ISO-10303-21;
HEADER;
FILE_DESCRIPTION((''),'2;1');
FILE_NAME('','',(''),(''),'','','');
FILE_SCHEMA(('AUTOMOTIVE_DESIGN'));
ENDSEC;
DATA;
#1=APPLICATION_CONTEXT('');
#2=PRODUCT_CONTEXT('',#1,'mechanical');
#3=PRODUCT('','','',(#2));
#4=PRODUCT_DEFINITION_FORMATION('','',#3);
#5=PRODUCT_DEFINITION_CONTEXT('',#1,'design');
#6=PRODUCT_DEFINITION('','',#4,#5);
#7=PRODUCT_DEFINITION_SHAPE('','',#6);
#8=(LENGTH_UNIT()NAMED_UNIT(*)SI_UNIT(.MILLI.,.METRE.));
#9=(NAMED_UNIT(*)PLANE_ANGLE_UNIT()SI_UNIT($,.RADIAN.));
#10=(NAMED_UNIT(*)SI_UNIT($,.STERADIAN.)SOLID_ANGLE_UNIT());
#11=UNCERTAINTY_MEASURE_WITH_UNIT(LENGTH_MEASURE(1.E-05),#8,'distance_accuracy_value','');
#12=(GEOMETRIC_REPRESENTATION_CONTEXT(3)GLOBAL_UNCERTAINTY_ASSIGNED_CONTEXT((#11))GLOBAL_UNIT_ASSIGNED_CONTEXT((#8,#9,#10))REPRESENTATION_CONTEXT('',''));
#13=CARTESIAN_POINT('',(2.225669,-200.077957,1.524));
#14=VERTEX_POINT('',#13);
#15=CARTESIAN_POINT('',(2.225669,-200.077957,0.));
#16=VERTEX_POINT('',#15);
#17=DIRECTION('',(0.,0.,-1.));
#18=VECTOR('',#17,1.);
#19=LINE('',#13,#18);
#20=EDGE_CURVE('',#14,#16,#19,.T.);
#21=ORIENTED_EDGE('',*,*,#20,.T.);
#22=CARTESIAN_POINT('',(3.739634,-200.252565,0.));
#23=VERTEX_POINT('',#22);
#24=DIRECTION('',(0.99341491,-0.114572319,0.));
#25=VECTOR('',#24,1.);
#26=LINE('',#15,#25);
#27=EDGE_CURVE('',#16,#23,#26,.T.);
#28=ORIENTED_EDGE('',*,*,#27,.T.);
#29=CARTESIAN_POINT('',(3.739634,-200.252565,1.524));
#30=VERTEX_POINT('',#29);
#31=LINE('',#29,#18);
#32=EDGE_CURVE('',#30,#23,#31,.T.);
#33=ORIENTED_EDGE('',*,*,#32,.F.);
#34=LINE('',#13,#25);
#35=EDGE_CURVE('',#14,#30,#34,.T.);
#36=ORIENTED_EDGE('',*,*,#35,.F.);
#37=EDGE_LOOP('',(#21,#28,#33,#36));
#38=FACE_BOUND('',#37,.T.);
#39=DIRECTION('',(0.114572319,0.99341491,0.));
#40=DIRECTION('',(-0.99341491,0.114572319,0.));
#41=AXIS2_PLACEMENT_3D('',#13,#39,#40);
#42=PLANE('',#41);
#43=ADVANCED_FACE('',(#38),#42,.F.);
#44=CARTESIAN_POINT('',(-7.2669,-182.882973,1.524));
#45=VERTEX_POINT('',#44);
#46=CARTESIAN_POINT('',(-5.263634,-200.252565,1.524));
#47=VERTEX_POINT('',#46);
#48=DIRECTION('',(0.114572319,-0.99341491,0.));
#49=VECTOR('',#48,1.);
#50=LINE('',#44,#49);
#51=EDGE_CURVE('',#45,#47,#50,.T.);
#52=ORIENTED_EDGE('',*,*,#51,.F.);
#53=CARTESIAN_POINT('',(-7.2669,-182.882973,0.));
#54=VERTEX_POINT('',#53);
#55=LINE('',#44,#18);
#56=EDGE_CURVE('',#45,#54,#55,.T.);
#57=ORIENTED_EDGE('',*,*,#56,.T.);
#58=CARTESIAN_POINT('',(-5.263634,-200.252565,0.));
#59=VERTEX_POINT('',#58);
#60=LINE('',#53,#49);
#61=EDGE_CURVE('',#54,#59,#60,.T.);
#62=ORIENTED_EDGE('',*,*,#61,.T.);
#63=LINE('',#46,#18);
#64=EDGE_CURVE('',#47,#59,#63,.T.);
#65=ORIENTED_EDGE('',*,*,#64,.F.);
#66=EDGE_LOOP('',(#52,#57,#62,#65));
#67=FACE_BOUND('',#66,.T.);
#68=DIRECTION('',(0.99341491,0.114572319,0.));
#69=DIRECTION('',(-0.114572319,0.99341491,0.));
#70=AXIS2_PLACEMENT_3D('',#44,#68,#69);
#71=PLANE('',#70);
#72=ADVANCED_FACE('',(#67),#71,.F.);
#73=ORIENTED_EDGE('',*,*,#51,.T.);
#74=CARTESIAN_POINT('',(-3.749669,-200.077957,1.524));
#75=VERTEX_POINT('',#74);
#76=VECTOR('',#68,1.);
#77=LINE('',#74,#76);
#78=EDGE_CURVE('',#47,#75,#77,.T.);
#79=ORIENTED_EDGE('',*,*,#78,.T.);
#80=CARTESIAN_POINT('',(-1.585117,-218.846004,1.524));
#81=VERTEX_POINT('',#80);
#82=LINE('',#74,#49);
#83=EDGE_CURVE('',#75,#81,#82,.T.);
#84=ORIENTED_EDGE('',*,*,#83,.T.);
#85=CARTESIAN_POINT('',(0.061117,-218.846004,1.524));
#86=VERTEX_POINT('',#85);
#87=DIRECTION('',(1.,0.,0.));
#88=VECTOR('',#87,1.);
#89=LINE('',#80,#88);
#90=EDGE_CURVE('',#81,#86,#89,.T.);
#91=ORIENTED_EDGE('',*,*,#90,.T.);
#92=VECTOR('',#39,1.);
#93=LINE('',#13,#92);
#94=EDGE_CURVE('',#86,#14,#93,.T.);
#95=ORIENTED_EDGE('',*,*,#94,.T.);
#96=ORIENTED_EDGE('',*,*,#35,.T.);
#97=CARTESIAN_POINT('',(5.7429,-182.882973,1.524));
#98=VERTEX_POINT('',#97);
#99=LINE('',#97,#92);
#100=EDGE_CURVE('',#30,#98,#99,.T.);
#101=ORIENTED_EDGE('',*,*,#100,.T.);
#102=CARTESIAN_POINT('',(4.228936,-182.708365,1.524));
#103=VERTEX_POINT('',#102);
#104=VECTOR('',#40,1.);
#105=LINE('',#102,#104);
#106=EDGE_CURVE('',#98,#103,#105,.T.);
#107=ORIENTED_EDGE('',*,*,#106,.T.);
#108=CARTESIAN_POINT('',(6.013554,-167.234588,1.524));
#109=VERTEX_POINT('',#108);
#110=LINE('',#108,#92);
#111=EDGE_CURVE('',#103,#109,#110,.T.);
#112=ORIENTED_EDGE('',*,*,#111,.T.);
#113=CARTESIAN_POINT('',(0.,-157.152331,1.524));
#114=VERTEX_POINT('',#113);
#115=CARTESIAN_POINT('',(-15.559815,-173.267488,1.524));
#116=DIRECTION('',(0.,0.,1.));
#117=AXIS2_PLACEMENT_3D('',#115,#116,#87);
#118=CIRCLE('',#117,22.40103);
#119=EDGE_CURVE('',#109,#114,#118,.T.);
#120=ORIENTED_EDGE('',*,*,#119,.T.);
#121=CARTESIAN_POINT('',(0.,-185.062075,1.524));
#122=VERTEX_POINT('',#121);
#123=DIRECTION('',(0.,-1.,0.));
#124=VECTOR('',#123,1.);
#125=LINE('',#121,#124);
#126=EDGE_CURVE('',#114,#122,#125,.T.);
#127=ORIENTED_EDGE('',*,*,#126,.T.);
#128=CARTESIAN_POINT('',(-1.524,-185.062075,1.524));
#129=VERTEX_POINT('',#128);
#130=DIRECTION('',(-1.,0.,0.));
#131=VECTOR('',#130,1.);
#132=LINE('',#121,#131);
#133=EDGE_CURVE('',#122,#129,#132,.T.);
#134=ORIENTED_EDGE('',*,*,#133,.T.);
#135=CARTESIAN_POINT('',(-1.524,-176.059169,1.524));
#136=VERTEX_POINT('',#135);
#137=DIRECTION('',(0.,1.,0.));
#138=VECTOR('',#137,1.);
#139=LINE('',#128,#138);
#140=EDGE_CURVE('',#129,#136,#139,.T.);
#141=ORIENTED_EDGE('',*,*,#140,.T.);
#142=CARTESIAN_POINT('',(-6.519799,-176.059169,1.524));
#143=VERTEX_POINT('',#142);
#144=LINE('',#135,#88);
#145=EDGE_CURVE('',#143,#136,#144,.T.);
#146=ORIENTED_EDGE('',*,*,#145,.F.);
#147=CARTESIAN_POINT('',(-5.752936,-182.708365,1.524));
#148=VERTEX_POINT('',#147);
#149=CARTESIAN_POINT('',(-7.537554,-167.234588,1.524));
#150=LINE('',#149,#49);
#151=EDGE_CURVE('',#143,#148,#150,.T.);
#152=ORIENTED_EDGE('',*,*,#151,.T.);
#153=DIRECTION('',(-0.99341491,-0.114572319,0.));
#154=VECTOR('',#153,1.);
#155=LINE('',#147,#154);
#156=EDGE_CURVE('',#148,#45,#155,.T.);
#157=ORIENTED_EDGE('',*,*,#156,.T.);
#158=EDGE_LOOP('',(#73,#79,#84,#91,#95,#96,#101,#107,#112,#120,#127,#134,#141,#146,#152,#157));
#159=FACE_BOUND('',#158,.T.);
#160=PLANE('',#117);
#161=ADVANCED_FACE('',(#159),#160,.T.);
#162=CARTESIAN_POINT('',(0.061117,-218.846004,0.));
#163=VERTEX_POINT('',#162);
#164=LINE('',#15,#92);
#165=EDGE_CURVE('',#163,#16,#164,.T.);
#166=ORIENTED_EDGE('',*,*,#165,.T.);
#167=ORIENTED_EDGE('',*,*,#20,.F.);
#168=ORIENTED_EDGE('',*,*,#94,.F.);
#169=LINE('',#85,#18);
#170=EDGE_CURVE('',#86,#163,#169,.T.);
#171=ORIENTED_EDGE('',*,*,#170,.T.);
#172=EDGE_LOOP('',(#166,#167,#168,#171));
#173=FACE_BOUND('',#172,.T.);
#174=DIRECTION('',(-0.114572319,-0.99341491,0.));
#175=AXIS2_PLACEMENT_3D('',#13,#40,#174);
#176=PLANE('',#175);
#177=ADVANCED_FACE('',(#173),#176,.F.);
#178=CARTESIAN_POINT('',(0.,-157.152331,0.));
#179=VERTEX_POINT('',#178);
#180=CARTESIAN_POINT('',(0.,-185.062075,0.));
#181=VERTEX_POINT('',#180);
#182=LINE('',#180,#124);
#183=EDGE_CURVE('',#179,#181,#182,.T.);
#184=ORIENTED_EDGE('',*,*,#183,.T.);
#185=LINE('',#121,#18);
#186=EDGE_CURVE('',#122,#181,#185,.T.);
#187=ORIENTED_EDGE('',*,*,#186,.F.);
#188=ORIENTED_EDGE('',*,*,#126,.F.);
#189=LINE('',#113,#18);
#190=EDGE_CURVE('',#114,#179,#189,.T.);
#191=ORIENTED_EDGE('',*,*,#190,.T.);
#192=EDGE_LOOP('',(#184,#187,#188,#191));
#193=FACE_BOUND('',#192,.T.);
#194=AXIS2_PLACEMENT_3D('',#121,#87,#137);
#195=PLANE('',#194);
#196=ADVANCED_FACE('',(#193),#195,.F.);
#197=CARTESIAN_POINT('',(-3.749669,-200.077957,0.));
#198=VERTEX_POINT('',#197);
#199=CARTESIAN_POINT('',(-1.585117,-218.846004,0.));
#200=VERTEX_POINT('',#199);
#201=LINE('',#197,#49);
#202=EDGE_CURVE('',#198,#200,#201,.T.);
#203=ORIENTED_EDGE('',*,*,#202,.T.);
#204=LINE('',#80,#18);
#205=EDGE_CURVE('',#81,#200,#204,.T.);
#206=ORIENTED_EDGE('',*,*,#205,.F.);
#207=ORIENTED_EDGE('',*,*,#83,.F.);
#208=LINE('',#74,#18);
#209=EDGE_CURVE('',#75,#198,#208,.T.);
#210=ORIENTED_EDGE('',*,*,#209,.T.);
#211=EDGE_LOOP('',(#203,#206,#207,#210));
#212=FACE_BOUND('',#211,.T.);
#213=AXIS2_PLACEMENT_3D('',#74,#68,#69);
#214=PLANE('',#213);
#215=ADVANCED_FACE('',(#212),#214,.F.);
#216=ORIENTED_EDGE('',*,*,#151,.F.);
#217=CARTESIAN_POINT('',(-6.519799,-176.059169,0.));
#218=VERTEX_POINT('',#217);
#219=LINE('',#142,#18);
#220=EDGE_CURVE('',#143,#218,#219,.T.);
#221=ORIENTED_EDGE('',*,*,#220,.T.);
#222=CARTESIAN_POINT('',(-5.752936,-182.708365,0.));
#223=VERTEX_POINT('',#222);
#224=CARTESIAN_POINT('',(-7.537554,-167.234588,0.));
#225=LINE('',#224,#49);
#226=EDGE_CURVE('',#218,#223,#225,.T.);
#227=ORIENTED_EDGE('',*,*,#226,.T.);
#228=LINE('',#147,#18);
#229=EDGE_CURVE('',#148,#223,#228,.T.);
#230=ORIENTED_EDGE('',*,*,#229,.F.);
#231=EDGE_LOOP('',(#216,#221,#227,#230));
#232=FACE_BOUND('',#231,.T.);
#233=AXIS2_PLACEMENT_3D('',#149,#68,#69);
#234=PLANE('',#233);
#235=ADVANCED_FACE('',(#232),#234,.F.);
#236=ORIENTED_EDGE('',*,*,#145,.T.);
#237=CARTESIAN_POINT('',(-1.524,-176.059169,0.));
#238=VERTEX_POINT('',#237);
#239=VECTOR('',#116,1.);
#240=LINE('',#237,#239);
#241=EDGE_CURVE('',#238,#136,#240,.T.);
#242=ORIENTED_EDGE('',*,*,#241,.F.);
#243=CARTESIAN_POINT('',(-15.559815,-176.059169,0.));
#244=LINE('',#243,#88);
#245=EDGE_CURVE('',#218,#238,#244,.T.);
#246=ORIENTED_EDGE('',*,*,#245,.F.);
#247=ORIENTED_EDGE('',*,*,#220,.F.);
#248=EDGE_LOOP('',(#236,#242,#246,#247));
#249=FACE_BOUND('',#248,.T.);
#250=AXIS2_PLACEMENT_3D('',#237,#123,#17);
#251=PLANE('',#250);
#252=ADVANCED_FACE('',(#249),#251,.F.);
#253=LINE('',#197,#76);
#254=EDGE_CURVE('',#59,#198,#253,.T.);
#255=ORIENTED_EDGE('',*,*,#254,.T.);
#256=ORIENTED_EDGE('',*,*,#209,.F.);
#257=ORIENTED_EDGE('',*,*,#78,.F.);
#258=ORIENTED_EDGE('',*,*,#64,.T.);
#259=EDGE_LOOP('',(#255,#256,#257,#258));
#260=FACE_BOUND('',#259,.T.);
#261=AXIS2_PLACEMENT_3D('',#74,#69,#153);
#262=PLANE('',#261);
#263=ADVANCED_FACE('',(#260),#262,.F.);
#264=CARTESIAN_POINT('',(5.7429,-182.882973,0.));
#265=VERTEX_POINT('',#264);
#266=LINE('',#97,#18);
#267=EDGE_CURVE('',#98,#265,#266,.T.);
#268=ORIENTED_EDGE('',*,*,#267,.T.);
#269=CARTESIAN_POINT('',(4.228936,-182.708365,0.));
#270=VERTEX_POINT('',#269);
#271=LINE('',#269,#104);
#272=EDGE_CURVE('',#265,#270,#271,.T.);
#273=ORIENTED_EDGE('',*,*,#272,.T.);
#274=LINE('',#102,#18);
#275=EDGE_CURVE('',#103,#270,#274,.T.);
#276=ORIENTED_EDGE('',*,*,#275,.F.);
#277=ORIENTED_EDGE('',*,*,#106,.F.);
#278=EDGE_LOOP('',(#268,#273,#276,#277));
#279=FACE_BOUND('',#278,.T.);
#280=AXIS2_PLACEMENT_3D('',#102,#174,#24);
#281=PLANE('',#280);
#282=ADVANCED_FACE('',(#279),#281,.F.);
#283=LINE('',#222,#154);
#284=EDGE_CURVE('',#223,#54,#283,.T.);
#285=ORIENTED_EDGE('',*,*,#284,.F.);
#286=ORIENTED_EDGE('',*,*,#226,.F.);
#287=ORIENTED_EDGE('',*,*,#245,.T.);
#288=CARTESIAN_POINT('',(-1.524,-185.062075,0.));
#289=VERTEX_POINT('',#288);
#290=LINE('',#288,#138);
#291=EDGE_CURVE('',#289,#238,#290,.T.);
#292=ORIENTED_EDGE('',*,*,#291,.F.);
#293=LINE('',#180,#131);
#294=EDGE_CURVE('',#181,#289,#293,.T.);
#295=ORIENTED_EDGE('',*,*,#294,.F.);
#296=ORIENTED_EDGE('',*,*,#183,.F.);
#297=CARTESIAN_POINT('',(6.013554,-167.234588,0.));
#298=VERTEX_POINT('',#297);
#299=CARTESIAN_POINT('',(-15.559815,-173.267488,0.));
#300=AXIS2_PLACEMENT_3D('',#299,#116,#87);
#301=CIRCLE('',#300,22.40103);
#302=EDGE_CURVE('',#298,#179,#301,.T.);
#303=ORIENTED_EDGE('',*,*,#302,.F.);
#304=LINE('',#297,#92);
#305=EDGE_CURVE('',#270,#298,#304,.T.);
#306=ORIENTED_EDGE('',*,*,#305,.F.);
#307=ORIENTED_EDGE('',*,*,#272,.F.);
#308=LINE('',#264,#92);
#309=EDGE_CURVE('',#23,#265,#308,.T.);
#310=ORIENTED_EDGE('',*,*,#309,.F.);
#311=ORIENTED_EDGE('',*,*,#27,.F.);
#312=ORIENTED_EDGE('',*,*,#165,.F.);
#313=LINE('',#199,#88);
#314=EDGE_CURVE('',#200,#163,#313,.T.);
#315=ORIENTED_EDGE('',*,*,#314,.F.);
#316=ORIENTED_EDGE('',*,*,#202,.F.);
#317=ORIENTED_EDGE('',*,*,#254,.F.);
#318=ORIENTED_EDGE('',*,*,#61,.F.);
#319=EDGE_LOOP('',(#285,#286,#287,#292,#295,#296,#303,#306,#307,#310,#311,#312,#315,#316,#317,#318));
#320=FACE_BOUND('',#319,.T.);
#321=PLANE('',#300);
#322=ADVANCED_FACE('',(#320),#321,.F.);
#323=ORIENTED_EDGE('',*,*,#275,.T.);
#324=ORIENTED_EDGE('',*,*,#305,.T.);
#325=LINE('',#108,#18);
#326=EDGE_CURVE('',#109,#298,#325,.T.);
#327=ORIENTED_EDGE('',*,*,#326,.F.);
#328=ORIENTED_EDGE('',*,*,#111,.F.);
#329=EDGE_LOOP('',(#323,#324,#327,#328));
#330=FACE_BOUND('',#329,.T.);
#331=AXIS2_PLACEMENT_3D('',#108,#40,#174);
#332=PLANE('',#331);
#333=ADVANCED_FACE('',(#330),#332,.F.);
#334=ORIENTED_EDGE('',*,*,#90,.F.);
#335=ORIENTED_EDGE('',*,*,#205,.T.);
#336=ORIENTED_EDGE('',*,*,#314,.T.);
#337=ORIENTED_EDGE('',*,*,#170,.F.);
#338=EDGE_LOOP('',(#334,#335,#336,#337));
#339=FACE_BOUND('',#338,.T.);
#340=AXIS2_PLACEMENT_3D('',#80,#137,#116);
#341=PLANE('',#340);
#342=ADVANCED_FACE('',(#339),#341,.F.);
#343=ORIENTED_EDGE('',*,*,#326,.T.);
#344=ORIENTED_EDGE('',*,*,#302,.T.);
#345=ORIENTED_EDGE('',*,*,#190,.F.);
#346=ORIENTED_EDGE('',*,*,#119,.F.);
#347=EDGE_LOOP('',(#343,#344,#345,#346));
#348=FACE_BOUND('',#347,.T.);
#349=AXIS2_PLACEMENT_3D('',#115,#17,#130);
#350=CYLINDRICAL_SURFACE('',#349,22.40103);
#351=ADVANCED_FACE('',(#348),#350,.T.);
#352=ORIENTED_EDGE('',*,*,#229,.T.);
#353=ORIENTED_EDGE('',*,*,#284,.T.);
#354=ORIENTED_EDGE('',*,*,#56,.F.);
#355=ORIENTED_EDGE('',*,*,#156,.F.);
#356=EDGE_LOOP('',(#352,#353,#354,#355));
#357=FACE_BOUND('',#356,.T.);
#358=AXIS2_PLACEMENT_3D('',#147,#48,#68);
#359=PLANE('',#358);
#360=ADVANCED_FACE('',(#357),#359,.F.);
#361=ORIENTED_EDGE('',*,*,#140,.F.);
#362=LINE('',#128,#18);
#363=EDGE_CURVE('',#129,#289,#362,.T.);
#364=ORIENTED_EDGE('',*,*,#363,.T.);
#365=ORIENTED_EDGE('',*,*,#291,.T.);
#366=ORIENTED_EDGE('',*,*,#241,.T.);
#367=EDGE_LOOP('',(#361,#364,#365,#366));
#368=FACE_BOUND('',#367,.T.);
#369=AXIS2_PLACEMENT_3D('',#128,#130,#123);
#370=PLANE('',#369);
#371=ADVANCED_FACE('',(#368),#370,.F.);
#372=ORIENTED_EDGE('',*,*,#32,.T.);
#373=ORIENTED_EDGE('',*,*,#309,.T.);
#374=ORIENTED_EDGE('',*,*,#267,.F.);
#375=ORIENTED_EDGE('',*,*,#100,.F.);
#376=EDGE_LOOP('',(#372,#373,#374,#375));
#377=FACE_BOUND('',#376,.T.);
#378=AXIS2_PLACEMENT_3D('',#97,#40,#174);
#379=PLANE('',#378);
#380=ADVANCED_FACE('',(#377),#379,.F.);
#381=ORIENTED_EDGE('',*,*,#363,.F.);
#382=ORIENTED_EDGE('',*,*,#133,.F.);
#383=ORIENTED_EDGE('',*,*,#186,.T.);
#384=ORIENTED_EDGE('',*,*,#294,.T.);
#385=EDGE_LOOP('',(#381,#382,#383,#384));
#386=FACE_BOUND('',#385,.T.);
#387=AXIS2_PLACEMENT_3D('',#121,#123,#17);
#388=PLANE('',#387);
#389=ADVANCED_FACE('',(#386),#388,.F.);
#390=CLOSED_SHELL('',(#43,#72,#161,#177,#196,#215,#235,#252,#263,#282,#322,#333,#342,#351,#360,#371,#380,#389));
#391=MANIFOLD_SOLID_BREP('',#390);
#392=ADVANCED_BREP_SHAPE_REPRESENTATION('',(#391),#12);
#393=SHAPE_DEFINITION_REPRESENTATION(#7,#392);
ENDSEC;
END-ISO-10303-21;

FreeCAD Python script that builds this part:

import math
import FreeCAD as App
import Part
import Sketcher
Q = App.Units.Quantity

doc = App.newDocument("Part")
body = doc.addObject("PartDesign::Body", "Body")

# Sketch on XY plane
sketch1 = body.newObject("Sketcher::SketchObject", "Sketch")
sketch1.AttachmentSupport = (doc.getObject("XY_Plane"), [""])
sketch1.MapMode = "FlatFace"
sketch1.addGeometry(Part.LineSegment(App.Vector(0, -185.062075, 0), App.Vector(-1.524, -185.062075, 0)), False)
sketch1.addGeometry(Part.LineSegment(App.Vector(-1.524, -185.062075, 0), App.Vector(-1.524, -157.152331, 0)), False)
sketch1.addGeometry(Part.ArcOfCircle(Part.Circle(App.Vector(14.035815, -173.267488, 0), App.Vector(0, 0, 1), 22.40103), math.radians(133.995564), math.radians(164.37658)), False)
sketch1.addGeometry(Part.LineSegment(App.Vector(-7.537554, -167.234588, 0), App.Vector(-5.752936, -182.708365, 0)), False)
sketch1.addGeometry(Part.LineSegment(App.Vector(-5.752936, -182.708365, 0), App.Vector(-7.2669, -182.882973, 0)), False)
sketch1.addGeometry(Part.LineSegment(App.Vector(-7.2669, -182.882973, 0), App.Vector(-5.263634, -200.252565, 0)), False)
sketch1.addGeometry(Part.LineSegment(App.Vector(-5.263634, -200.252565, 0), App.Vector(-3.749669, -200.077957, 0)), False)
sketch1.addGeometry(Part.LineSegment(App.Vector(-3.749669, -200.077957, 0), App.Vector(-1.585117, -218.846004, 0)), False)
sketch1.addGeometry(Part.LineSegment(App.Vector(-1.585117, -218.846004, 0), App.Vector(0.061117, -218.846004, 0)), False)
sketch1.addGeometry(Part.LineSegment(App.Vector(0.061117, -218.846004, 0), App.Vector(2.225669, -200.077957, 0)), False)
sketch1.addGeometry(Part.LineSegment(App.Vector(2.225669, -200.077957, 0), App.Vector(3.739634, -200.252565, 0)), False)
sketch1.addGeometry(Part.LineSegment(App.Vector(3.739634, -200.252565, 0), App.Vector(5.7429, -182.882973, 0)), False)
sketch1.addGeometry(Part.LineSegment(App.Vector(5.7429, -182.882973, 0), App.Vector(4.228936, -182.708365, 0)), False)
sketch1.addGeometry(Part.LineSegment(App.Vector(4.228936, -182.708365, 0), App.Vector(6.013554, -167.234588, 0)), False)
sketch1.addGeometry(Part.ArcOfCircle(Part.Circle(App.Vector(-15.559815, -173.267488, 0), App.Vector(0, 0, 1), 22.40103), math.radians(15.62342), math.radians(46.004436)), False)
sketch1.addGeometry(Part.LineSegment(App.Vector(0, -157.152331, 0), App.Vector(0, -185.062075, 0)), False)
sketch1.addConstraint(Sketcher.Constraint("Coincident", 0, 2, 1, 1))
sketch1.addConstraint(Sketcher.Constraint("Coincident", 1, 2, 2, 1))
sketch1.addConstraint(Sketcher.Constraint("Coincident", 2, 2, 3, 1))
sketch1.addConstraint(Sketcher.Constraint("Coincident", 3, 2, 4, 1))
sketch1.addConstraint(Sketcher.Constraint("Coincident", 4, 2, 5, 1))
sketch1.addConstraint(Sketcher.Constraint("Coincident", 5, 2, 6, 1))
sketch1.addConstraint(Sketcher.Constraint("Coincident", 6, 2, 7, 1))
sketch1.addConstraint(Sketcher.Constraint("Coincident", 7, 2, 8, 1))
sketch1.addConstraint(Sketcher.Constraint("Coincident", 8, 2, 9, 1))
sketch1.addConstraint(Sketcher.Constraint("Coincident", 9, 2, 10, 1))
sketch1.addConstraint(Sketcher.Constraint("Coincident", 10, 2, 11, 1))
sketch1.addConstraint(Sketcher.Constraint("Coincident", 11, 2, 12, 1))
sketch1.addConstraint(Sketcher.Constraint("Coincident", 12, 2, 13, 1))
sketch1.addConstraint(Sketcher.Constraint("Coincident", 13, 2, 14, 1))
sketch1.addConstraint(Sketcher.Constraint("Coincident", 14, 2, 15, 1))
sketch1.addConstraint(Sketcher.Constraint("Coincident", 15, 2, 0, 1))
sketch1.addConstraint(Sketcher.Constraint("Horizontal", 0))
sketch1.addConstraint(Sketcher.Constraint("Vertical", 1))
sketch1.addConstraint(Sketcher.Constraint("Horizontal", 8))
sketch1.addConstraint(Sketcher.Constraint("Vertical", 15))
sketch1.addConstraint(Sketcher.Constraint("Equal", 2, 14))
sketch1.addConstraint(Sketcher.Constraint("PointOnObject", 14, 2, -2))
sketch1.addConstraint(Sketcher.Constraint("Perpendicular", 3, 4))
sketch1.addConstraint(Sketcher.Constraint("Perpendicular", 4, 5))
sketch1.addConstraint(Sketcher.Constraint("Perpendicular", 5, 6))
sketch1.addConstraint(Sketcher.Constraint("Perpendicular", 6, 7))
sketch1.addConstraint(Sketcher.Constraint("Perpendicular", 9, 10))
sketch1.addConstraint(Sketcher.Constraint("Perpendicular", 10, 11))
sketch1.addConstraint(Sketcher.Constraint("Perpendicular", 11, 12))
sketch1.addConstraint(Sketcher.Constraint("Perpendicular", 12, 13))
sketch1.addConstraint(Sketcher.Constraint("Horizontal", 2, 3, 14, 3))
sketch1.addConstraint(Sketcher.Constraint("Horizontal", 6, 2, 9, 2))
sketch1.addConstraint(Sketcher.Constraint("Horizontal", 5, 2, 10, 2))
sketch1.addConstraint(Sketcher.Constraint("Horizontal", 4, 2, 11, 2))
sketch1.addConstraint(Sketcher.Constraint("Horizontal", 3, 2, 12, 2))
sketch1.addConstraint(Sketcher.Constraint("Horizontal", 2, 2, 13, 2))
sketch1.addConstraint(Sketcher.Constraint("Horizontal", 1, 2, 14, 2))
sketch1.addConstraint(Sketcher.Constraint("Equal", 4, 6))
sketch1.addConstraint(Sketcher.Constraint("Equal", 7, 9))
sketch1.addConstraint(Sketcher.Constraint("DistanceX", 0, 2, 0, 1, Q("0.06 in")))
sketch1.addConstraint(Sketcher.Constraint("Distance", 4, Q("0.06 in")))
sketch1.addConstraint(Sketcher.Constraint("Radius", 2, 22.40103))
sketch1.addConstraint(Sketcher.Constraint("DistanceX", 4, 2, -1, 1, 7.2669))
sketch1.addConstraint(Sketcher.Constraint("DistanceY", 14, 3, 2, 2, 6.032899))
sketch1.addConstraint(Sketcher.Constraint("DistanceY", 0, 2, 4, 2, 2.179102))
sketch1.addConstraint(Sketcher.Constraint("DistanceX", 3, 2, 5, 2, 0.489302))
sketch1.addConstraint(Sketcher.Constraint("DistanceY", 5, 2, 3, 2, 17.5442))
sketch1.addConstraint(Sketcher.Constraint("Distance", 3, 15.576349))
sketch1.addConstraint(Sketcher.Constraint("DistanceX", 8, 1, 8, 2, 1.646234))
sketch1.addConstraint(Sketcher.Constraint("DistanceY", 1, 2, -1, 1, 157.152331))
pad1 = body.newObject("PartDesign::Pad", "Pad")
pad1.Profile = sketch1
pad1.Length = Q("0.06 in")

# Sketch on XY plane
sketch2 = body.newObject("Sketcher::SketchObject", "Sketch001")
sketch2.AttachmentSupport = (doc.getObject("XY_Plane"), [""])
sketch2.MapMode = "FlatFace"
sketch2.AttachmentOffset = App.Placement(App.Vector(0, 0, 0.06 * 25.4), App.Rotation())
sketch2.addGeometry(Part.LineSegment(App.Vector(-11.863953, -155.051125, 0), App.Vector(-11.863953, -176.059169, 0)), False)
sketch2.addGeometry(Part.LineSegment(App.Vector(-11.863953, -176.059169, 0), App.Vector(-1.524, -176.059169, 0)), False)
sketch2.addGeometry(Part.LineSegment(App.Vector(-1.524, -176.059169, 0), App.Vector(-1.524, -155.051125, 0)), False)
sketch2.addGeometry(Part.LineSegment(App.Vector(-1.524, -155.051125, 0), App.Vector(-11.863953, -155.051125, 0)), False)
sketch2.addConstraint(Sketcher.Constraint("Coincident", 0, 2, 1, 1))
sketch2.addConstraint(Sketcher.Constraint("Coincident", 1, 2, 2, 1))
sketch2.addConstraint(Sketcher.Constraint("Coincident", 2, 2, 3, 1))
sketch2.addConstraint(Sketcher.Constraint("Coincident", 3, 2, 0, 1))
sketch2.addConstraint(Sketcher.Constraint("Vertical", 0))
sketch2.addConstraint(Sketcher.Constraint("Horizontal", 1))
sketch2.addConstraint(Sketcher.Constraint("Vertical", 2))
sketch2.addConstraint(Sketcher.Constraint("Horizontal", 3))
sketch2.addConstraint(Sketcher.Constraint("DistanceX", 1, 2, -1, 1, Q("0.06 in")))
sketch2.addConstraint(Sketcher.Constraint("DistanceX", 1, 1, 1, 2, 10.339953))
sketch2.addConstraint(Sketcher.Constraint("DistanceY", 0, 2, 0, 1, 21.008044))
sketch2.addConstraint(Sketcher.Constraint("DistanceY", 0, 2, -1, 1, 176.059169))
pocket1 = body.newObject("PartDesign::Pocket", "Pocket")
pocket1.Profile = sketch2
pocket1.Length = Q("0.06 in")

doc.recompute()
